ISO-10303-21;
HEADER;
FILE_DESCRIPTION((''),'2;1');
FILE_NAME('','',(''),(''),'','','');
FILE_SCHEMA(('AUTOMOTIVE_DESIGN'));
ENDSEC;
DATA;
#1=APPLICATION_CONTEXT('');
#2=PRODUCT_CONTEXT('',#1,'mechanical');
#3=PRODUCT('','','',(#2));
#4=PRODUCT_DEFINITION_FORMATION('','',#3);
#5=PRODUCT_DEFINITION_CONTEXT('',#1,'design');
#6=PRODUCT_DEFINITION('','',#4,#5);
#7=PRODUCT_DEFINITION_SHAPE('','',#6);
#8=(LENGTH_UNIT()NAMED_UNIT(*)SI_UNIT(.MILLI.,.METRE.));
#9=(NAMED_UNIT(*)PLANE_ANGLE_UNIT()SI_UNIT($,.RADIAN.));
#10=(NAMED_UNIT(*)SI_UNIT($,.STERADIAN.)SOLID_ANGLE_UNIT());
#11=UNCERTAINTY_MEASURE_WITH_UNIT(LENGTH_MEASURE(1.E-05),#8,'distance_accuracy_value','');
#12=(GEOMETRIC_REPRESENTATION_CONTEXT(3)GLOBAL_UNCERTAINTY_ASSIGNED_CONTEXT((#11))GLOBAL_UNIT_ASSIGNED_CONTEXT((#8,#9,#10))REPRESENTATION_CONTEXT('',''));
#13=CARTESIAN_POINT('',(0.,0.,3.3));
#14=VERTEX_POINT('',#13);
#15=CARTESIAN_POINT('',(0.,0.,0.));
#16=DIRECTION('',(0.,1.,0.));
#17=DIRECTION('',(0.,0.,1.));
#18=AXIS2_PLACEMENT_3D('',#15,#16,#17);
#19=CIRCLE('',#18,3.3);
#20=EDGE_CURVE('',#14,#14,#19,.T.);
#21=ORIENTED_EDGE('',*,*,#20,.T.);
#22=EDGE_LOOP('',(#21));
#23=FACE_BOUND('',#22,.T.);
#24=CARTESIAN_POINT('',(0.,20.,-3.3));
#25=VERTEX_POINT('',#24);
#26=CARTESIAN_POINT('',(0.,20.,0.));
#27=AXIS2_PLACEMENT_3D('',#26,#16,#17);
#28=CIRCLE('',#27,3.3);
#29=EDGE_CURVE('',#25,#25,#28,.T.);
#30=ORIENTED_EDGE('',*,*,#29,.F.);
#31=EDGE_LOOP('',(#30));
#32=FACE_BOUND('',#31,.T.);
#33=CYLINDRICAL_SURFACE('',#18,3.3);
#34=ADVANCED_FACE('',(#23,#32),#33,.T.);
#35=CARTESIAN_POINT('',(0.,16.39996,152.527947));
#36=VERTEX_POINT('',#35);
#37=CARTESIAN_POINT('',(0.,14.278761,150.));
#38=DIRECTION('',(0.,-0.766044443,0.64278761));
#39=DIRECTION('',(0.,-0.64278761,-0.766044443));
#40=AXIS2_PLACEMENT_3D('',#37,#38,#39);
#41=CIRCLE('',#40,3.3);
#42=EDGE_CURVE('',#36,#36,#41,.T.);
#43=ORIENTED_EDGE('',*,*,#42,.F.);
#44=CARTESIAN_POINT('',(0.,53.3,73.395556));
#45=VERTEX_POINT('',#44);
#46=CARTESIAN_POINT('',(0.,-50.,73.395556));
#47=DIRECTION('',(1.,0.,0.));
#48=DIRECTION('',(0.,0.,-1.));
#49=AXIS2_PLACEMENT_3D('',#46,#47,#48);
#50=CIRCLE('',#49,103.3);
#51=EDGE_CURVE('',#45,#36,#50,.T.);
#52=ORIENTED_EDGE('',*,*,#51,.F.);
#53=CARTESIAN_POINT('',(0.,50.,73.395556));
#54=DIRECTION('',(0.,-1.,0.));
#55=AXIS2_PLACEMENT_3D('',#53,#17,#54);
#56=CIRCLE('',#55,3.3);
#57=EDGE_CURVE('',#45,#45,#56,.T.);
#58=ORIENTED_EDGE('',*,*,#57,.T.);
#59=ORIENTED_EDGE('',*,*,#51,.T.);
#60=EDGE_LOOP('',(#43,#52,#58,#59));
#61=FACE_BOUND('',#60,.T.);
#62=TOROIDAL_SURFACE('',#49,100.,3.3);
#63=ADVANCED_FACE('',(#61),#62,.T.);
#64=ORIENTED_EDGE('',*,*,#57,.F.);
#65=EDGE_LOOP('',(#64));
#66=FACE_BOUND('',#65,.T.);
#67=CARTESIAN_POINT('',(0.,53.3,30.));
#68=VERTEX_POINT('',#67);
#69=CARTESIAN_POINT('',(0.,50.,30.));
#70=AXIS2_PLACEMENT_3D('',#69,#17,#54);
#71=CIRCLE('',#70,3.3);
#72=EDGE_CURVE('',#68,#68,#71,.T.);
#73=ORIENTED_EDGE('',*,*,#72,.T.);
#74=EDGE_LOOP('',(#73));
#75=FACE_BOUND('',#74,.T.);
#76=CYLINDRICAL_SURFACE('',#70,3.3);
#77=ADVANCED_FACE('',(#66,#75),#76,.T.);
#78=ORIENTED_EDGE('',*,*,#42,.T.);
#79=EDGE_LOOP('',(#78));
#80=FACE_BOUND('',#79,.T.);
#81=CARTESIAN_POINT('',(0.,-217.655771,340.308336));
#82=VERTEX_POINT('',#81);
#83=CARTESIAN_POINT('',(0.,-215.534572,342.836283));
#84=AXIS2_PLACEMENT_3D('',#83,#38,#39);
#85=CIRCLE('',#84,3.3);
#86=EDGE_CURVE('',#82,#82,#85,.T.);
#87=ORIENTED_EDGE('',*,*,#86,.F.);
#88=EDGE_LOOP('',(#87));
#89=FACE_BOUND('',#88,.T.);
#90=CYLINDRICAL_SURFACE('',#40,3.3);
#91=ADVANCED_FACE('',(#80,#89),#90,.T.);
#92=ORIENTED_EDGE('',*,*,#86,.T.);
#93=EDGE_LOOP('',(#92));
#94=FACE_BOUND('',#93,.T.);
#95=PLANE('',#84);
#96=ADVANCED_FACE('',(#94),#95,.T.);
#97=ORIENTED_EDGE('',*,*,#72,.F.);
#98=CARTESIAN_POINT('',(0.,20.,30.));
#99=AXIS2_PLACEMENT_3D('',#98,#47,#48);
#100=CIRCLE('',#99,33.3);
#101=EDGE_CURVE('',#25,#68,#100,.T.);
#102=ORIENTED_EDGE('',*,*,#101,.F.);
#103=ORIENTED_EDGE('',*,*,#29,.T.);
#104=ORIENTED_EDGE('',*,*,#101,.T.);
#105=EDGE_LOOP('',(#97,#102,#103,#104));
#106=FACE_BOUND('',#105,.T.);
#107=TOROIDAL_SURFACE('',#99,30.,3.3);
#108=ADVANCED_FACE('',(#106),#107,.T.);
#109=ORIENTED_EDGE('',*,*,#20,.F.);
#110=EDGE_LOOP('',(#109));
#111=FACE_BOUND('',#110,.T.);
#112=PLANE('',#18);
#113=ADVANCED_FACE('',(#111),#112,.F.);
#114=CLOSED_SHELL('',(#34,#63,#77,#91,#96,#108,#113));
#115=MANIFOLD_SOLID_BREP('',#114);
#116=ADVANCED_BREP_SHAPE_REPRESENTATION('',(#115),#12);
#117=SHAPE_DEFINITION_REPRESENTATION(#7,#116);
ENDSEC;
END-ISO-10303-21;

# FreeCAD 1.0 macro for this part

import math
import FreeCAD as App
import Part
import Sketcher

V = App.Vector
Q = App.Units.Quantity

doc = App.newDocument("Part")
params = doc.addObject("Spreadsheet::Sheet", "Params")
for row, (alias, value) in enumerate([
    ("sketch1_diameter", "6.6 mm"),
    ("sketch2_radius", "30 mm"),
    ("sketch2_radius2", "100 mm"),
    ("sketch2_width", "20 mm"),
    ("sketch2_length", "300 mm"),
], start=1):
    params.set(f"A{row}", alias)
    params.set(f"B{row}", "=" + value)
    params.setAlias(f"B{row}", alias)

body = doc.addObject("PartDesign::Body", "Body")

# Sketch on XZ plane
sketch1 = body.newObject("Sketcher::SketchObject", "Sketch")
sketch1.AttachmentSupport = (doc.getObject("XZ_Plane"), [""])
sketch1.MapMode = "FlatFace"
sketch1.addGeometry(Part.Circle(V(0, 0, 0), V(0, 0, 1), 3.3), False)
sketch1.addConstraint(Sketcher.Constraint("Coincident", 0, 3, -1, 1))
sketch1.addConstraint(Sketcher.Constraint("Diameter", 0, Q("6.6 mm")))
sketch1.setExpression("Constraints[1]", "Params.sketch1_diameter")

# Sketch on YZ plane
sketch2 = body.newObject("Sketcher::SketchObject", "Sketch001")
sketch2.AttachmentSupport = (doc.getObject("YZ_Plane"), [""])
sketch2.MapMode = "FlatFace"
sketch2.addGeometry(Part.LineSegment(V(0, 0, 0), V(20, 0, 0)), False)
sketch2.addGeometry(Part.ArcOfCircle(Part.Circle(V(20, 30, 0), V(0, 0, 1), 30), math.radians(-90), math.radians(0)), False)
sketch2.addGeometry(Part.LineSegment(V(50, 30, 0), V(50, 73.395556, 0)), False)
sketch2.addGeometry(Part.ArcOfCircle(Part.Circle(V(-50, 73.395556, 0), V(0, 0, 1), 100), math.radians(0), math.radians(50)), False)
sketch2.addGeometry(Part.LineSegment(V(14.278761, 150, 0), V(-215.534572, 342.836283, 0)), False)
sketch2.addConstraint(Sketcher.Constraint("Tangent", 0, 2, 1, 1))
sketch2.addConstraint(Sketcher.Constraint("Tangent", 1, 2, 2, 1))
sketch2.addConstraint(Sketcher.Constraint("Tangent", 2, 2, 3, 1))
sketch2.addConstraint(Sketcher.Constraint("Tangent", 3, 2, 4, 1))
sketch2.addConstraint(Sketcher.Constraint("Horizontal", 0))
sketch2.addConstraint(Sketcher.Constraint("Vertical", 2))
sketch2.addConstraint(Sketcher.Constraint("Coincident", 0, 1, -1, 1))
sketch2.addConstraint(Sketcher.Constraint("Radius", 1, Q("30 mm")))
sketch2.addConstraint(Sketcher.Constraint("Radius", 3, Q("100 mm")))
sketch2.addConstraint(Sketcher.Constraint("DistanceX", 0, 1, 0, 2, Q("20 mm")))
sketch2.addConstraint(Sketcher.Constraint("Angle", 4, Q("140 deg")))
sketch2.addConstraint(Sketcher.Constraint("Distance", 4, Q("300 mm")))
sketch2.addConstraint(Sketcher.Constraint("DistanceY", -1, 1, 3, 2, Q("150 mm")))
sketch2.setExpression("Constraints[7]", "Params.sketch2_radius")
sketch2.setExpression("Constraints[8]", "Params.sketch2_radius2")
sketch2.setExpression("Constraints[9]", "Params.sketch2_width")
sketch2.setExpression("Constraints[11]", "Params.sketch2_length")
doc.recompute()

additivepipe = body.newObject("PartDesign::AdditivePipe", "AdditivePipe")
additivepipe.Profile = sketch1
additivepipe.Spine = (sketch2, ["Edge1", "Edge2", "Edge3", "Edge4", "Edge5"])

doc.recompute()
